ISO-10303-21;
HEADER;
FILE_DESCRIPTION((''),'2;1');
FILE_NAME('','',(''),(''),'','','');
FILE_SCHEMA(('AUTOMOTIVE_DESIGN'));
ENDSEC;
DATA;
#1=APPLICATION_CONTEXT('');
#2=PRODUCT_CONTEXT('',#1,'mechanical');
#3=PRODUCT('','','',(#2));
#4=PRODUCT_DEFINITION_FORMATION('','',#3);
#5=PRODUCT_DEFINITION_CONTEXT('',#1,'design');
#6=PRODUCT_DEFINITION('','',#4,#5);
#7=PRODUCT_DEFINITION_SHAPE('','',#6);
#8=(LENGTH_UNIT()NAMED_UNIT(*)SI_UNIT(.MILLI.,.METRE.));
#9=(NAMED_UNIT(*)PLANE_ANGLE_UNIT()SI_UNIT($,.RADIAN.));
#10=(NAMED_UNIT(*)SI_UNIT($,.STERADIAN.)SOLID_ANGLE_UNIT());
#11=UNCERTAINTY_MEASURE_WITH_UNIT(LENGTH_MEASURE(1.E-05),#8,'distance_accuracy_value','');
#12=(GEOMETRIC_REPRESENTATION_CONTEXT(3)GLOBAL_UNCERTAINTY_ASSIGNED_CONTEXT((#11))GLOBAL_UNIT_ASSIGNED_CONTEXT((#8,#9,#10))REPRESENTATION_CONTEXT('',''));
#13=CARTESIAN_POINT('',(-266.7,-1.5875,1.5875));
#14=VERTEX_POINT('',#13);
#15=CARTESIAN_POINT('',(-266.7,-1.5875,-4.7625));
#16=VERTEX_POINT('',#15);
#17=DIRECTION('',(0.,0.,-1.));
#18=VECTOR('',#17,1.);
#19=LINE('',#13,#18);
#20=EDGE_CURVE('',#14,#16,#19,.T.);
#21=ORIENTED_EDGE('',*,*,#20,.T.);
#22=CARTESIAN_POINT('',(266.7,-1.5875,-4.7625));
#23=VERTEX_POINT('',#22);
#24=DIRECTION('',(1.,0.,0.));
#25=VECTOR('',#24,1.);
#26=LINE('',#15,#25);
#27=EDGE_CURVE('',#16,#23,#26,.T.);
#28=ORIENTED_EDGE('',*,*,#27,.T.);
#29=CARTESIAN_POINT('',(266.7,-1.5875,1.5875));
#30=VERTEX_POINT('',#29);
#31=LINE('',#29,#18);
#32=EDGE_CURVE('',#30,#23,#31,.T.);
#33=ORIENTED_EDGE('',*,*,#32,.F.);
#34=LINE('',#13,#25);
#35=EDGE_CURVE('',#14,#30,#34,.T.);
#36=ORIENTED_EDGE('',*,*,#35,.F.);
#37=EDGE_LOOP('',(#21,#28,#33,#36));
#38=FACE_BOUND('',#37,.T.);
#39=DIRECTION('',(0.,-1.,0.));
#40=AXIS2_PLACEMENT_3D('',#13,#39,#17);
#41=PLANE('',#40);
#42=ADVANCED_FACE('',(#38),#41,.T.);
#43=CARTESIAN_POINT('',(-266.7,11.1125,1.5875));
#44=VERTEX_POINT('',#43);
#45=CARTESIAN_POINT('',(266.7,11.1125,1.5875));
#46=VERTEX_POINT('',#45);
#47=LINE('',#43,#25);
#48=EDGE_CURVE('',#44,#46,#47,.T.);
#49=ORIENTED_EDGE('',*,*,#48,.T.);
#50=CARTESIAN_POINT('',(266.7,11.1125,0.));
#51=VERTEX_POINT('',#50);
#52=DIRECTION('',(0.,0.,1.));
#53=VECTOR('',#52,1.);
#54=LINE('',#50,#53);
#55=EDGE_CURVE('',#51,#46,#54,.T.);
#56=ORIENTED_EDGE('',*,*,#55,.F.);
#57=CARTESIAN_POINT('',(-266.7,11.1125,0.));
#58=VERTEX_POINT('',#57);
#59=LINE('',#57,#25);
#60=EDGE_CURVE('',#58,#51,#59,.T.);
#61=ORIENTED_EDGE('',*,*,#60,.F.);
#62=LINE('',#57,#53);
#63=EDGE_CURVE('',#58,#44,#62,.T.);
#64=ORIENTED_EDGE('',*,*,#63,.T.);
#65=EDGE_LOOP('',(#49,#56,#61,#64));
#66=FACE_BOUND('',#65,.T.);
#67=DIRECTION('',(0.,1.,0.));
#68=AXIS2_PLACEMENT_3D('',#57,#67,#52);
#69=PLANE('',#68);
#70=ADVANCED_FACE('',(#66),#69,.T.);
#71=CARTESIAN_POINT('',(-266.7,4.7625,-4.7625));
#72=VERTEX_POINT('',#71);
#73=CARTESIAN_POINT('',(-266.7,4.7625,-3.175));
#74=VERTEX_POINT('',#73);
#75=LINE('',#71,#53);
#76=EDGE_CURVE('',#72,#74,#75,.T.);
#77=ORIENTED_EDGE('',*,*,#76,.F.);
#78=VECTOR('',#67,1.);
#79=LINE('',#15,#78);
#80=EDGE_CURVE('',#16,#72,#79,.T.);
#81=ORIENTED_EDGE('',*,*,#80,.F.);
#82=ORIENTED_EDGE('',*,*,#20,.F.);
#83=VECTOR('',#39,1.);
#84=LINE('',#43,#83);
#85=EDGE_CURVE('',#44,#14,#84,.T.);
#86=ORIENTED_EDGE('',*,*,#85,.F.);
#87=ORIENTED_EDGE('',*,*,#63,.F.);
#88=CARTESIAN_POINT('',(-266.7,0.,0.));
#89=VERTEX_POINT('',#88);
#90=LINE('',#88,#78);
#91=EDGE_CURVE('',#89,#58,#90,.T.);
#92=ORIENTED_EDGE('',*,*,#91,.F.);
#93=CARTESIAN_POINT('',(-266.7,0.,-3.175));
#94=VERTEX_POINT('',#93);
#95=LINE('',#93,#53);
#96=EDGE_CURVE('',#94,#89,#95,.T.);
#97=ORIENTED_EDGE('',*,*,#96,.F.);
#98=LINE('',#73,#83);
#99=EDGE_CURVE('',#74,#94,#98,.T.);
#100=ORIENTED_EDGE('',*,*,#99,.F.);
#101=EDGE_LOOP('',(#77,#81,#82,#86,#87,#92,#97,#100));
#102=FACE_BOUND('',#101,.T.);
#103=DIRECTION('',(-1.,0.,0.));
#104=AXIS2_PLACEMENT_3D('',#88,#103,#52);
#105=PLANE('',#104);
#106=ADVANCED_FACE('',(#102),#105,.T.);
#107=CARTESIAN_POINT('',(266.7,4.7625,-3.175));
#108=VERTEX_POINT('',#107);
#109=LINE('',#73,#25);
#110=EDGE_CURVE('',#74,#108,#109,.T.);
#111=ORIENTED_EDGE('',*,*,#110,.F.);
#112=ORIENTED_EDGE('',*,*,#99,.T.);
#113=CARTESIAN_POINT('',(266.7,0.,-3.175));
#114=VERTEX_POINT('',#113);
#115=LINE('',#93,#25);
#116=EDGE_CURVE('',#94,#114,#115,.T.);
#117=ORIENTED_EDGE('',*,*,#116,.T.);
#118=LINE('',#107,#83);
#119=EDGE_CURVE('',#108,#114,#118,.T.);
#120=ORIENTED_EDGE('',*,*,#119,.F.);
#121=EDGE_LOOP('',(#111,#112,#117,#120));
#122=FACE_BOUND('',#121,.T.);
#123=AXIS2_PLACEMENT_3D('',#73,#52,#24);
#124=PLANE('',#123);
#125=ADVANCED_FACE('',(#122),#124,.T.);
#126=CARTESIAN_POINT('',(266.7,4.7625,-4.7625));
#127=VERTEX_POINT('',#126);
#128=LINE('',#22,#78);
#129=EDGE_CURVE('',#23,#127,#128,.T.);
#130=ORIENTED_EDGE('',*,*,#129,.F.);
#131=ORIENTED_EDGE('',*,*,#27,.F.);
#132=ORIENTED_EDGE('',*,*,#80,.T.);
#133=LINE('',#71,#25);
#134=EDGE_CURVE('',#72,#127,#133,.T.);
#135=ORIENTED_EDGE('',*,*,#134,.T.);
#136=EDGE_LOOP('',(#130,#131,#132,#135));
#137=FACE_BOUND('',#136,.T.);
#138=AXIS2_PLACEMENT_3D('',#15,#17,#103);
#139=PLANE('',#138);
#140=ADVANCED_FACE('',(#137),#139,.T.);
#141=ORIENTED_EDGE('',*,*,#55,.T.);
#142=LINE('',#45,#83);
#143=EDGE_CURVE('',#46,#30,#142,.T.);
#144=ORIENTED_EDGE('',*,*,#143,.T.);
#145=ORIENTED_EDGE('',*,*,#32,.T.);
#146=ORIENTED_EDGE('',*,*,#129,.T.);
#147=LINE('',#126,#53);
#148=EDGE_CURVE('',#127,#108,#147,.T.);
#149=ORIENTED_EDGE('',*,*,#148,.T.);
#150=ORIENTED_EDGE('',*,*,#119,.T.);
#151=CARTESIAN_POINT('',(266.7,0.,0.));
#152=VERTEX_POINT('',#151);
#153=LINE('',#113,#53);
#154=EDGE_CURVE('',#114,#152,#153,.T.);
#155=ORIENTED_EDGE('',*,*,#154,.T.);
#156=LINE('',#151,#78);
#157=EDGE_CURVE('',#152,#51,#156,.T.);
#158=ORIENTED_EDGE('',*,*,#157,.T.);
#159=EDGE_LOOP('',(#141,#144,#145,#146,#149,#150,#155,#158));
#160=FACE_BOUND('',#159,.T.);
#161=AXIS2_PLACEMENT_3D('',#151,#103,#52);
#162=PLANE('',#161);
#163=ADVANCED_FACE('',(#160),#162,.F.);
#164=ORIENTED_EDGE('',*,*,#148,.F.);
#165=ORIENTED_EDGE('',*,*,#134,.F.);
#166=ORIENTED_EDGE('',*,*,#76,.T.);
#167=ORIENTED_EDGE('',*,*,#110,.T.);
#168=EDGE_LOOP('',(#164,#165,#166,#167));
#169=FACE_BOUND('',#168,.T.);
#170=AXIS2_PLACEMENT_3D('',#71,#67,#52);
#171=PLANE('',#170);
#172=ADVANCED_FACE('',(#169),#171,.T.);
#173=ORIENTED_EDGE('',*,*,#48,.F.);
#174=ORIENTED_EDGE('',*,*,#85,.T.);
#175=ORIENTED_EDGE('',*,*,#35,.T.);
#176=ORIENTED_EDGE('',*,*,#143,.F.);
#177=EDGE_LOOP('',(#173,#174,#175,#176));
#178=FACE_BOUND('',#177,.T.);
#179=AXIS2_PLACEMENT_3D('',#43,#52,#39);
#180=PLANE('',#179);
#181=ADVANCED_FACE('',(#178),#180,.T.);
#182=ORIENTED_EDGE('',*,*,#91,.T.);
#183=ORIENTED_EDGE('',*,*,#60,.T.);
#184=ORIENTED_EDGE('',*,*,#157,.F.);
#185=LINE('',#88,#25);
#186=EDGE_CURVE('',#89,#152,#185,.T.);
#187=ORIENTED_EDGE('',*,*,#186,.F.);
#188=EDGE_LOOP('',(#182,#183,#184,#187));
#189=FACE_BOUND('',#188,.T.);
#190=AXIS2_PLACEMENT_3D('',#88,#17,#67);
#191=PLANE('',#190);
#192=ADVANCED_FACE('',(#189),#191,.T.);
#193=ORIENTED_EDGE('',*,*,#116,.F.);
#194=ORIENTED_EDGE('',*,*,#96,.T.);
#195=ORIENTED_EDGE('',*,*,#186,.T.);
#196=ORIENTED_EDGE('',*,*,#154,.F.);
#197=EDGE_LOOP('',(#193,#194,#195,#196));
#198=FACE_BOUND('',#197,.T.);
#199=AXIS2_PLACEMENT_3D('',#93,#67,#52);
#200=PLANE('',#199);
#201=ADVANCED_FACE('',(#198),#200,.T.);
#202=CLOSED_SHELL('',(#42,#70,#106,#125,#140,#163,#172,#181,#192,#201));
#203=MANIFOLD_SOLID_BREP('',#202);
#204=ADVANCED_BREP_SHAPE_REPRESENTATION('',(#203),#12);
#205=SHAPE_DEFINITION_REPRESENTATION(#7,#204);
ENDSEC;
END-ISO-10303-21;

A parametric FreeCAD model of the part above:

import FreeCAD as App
import Part
import Sketcher

V = App.Vector
Q = App.Units.Quantity

doc = App.newDocument("Part")
body = doc.addObject("PartDesign::Body", "Body")

sketch1 = doc.addObject("Sketcher::SketchObject", "Sketch")
body.addObject(sketch1)
sketch1.AttachmentSupport = (doc.YZ_Plane, [""])
sketch1.MapMode = "FlatFace"
sketch1.addGeometry(Part.LineSegment(V(0, 0, 0), V(11.1125, 0, 0)), False)
sketch1.addGeometry(Part.LineSegment(V(11.1125, 0, 0), V(11.1125, 1.5875, 0)), False)
sketch1.addGeometry(Part.LineSegment(V(11.1125, 1.5875, 0), V(-1.5875, 1.5875, 0)), False)
sketch1.addGeometry(Part.LineSegment(V(-1.5875, 1.5875, 0), V(-1.5875, -4.7625, 0)), False)
sketch1.addGeometry(Part.LineSegment(V(-1.5875, -4.7625, 0), V(4.7625, -4.7625, 0)), False)
sketch1.addGeometry(Part.LineSegment(V(4.7625, -4.7625, 0), V(4.7625, -3.175, 0)), False)
sketch1.addGeometry(Part.LineSegment(V(4.7625, -3.175, 0), V(0, -3.175, 0)), False)
sketch1.addGeometry(Part.LineSegment(V(0, -3.175, 0), V(0, 0, 0)), False)
sketch1.addConstraint(Sketcher.Constraint("Coincident", 0, 2, 1, 1))
sketch1.addConstraint(Sketcher.Constraint("Coincident", 1, 2, 2, 1))
sketch1.addConstraint(Sketcher.Constraint("Coincident", 2, 2, 3, 1))
sketch1.addConstraint(Sketcher.Constraint("Coincident", 3, 2, 4, 1))
sketch1.addConstraint(Sketcher.Constraint("Coincident", 4, 2, 5, 1))
sketch1.addConstraint(Sketcher.Constraint("Coincident", 5, 2, 6, 1))
sketch1.addConstraint(Sketcher.Constraint("Coincident", 6, 2, 7, 1))
sketch1.addConstraint(Sketcher.Constraint("Coincident", 7, 2, 0, 1))
sketch1.addConstraint(Sketcher.Constraint("Horizontal", 0))
sketch1.addConstraint(Sketcher.Constraint("Vertical", 1))
sketch1.addConstraint(Sketcher.Constraint("Horizontal", 2))
sketch1.addConstraint(Sketcher.Constraint("Vertical", 3))
sketch1.addConstraint(Sketcher.Constraint("Horizontal", 4))
sketch1.addConstraint(Sketcher.Constraint("Vertical", 5))
sketch1.addConstraint(Sketcher.Constraint("Horizontal", 6))
sketch1.addConstraint(Sketcher.Constraint("Vertical", 7))
sketch1.addConstraint(Sketcher.Constraint("Coincident", 7, 2, -1, 1))
sketch1.addConstraint(Sketcher.Constraint("Equal", 4, 3))
sketch1.addConstraint(Sketcher.Constraint("Equal", 1, 5))
sketch1.addConstraint(Sketcher.Constraint("DistanceX", 2, 2, 2, 1, Q("0.5 in")))
sketch1.addConstraint(Sketcher.Constraint("DistanceX", 4, 1, 4, 2, Q("0.25 in")))
sketch1.addConstraint(Sketcher.Constraint("DistanceX", 0, 1, 0, 2, Q("0.4375 in")))
sketch1.addConstraint(Sketcher.Constraint("DistanceY", 1, 1, 1, 2, Q("0.0625 in")))
pad1 = doc.addObject("PartDesign::Pad", "Pad")
body.addObject(pad1)
pad1.Profile = sketch1
pad1.Type = "TwoLengths"
pad1.Length = Q("10.5 in")
pad1.Length2 = Q("10.5 in")

doc.recompute()
